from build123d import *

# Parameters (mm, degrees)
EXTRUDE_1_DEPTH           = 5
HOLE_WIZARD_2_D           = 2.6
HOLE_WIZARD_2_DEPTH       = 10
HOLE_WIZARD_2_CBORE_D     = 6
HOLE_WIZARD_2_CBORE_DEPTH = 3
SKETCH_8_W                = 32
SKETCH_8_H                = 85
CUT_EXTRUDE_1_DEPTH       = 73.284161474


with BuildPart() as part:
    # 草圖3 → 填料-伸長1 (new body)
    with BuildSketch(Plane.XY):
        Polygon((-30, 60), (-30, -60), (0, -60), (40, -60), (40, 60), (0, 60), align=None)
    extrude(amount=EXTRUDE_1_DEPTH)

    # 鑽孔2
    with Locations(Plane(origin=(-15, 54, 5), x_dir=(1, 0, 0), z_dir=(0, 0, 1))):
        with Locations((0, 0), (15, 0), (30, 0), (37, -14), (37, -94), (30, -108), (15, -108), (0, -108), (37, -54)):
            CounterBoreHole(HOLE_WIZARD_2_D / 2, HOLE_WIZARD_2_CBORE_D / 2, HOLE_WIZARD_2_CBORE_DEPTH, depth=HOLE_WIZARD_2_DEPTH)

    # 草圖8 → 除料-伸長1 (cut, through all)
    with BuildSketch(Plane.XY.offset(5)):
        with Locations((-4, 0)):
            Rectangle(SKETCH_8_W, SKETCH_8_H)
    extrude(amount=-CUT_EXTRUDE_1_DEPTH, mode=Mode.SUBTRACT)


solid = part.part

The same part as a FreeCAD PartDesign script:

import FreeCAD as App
import Part
import Sketcher

V = App.Vector
Q = App.Units.Quantity

doc = App.newDocument("Part")
body = doc.addObject("PartDesign::Body", "Body")

# Sketch on XY plane
sketch1 = doc.addObject("Sketcher::SketchObject", "Sketch")
body.addObject(sketch1)
sketch1.AttachmentSupport = (doc.XY_Plane, [""])
sketch1.MapMode = "FlatFace"
sketch1.addGeometry([
    Part.LineSegment(V(-30, 60, 0), V(-30, -60, 0)),
    Part.LineSegment(V(-30, -60, 0), V(40, -60, 0)),
    Part.LineSegment(V(40, -60, 0), V(40, 60, 0)),
    Part.LineSegment(V(40, 60, 0), V(-30, 60, 0)),
], False)
sketch1.addConstraint([
    Sketcher.Constraint("Coincident", 0, 2, 1, 1),
    Sketcher.Constraint("Coincident", 1, 2, 2, 1),
    Sketcher.Constraint("Coincident", 2, 2, 3, 1),
    Sketcher.Constraint("Coincident", 3, 2, 0, 1),
    Sketcher.Constraint("Vertical", 0),
    Sketcher.Constraint("Horizontal", 1),
    Sketcher.Constraint("Vertical", 2),
    Sketcher.Constraint("Horizontal", 3),
    Sketcher.Constraint("DistanceX", 1, 1, 1, 2, Q("70 mm")),
    Sketcher.Constraint("DistanceY", 0, 2, 0, 1, Q("120 mm")),
    Sketcher.Constraint("DistanceX", 0, 2, -1, 1, Q("30 mm")),
    Sketcher.Constraint("DistanceY", 0, 2, -1, 1, Q("60 mm")),
])
pad1 = doc.addObject("PartDesign::Pad", "Pad")
body.addObject(pad1)
pad1.Profile = sketch1
pad1.Length = 5

# Sketch on XY plane
sketch2 = doc.addObject("Sketcher::SketchObject", "Sketch001")
body.addObject(sketch2)
sketch2.AttachmentSupport = (doc.XY_Plane, [""])
sketch2.MapMode = "FlatFace"
sketch2.AttachmentOffset = App.Placement(V(0, 0, 5), App.Rotation())
sketch2.addGeometry([
    Part.Circle(V(-15, 54, 0), V(0, 0, 1), 1.3),  # 0
    Part.Circle(V(0, 54, 0), V(0, 0, 1), 1.3),  # 1
    Part.Circle(V(15, 54, 0), V(0, 0, 1), 1.3),  # 2
    Part.Circle(V(22, 40, 0), V(0, 0, 1), 1.3),  # 3
    Part.Circle(V(22, -40, 0), V(0, 0, 1), 1.3),  # 4
    Part.Circle(V(15, -54, 0), V(0, 0, 1), 1.3),  # 5
    Part.Circle(V(0, -54, 0), V(0, 0, 1), 1.3),  # 6
    Part.Circle(V(-15, -54, 0), V(0, 0, 1), 1.3),  # 7
    Part.Circle(V(22, 0, 0), V(0, 0, 1), 1.3),  # 8
], False)
sketch2.addConstraint([
    Sketcher.Constraint("Equal", 0, 1),
    Sketcher.Constraint("Equal", 1, 2),
    Sketcher.Constraint("Equal", 2, 3),
    Sketcher.Constraint("Equal", 3, 4),
    Sketcher.Constraint("Equal", 4, 5),
    Sketcher.Constraint("Equal", 5, 6),
    Sketcher.Constraint("Equal", 6, 7),
    Sketcher.Constraint("Equal", 7, 8),
    Sketcher.Constraint("Symmetric", 0, 3, 5, 3, -1, 1),
    Sketcher.Constraint("Symmetric", 1, 3, 6, 3, -1, 1),
    Sketcher.Constraint("Symmetric", 2, 3, 7, 3, -1, 1),
    Sketcher.Constraint("Symmetric", 0, 3, 2, 3, -2),
    Sketcher.Constraint("Symmetric", 3, 3, 4, 3, -1),
    Sketcher.Constraint("PointOnObject", 1, 3, -2),
    Sketcher.Constraint("PointOnObject", 8, 3, -1),
    Sketcher.Constraint("Horizontal", 0, 3, 1, 3),
    Sketcher.Constraint("Vertical", 4, 3, 8, 3),
    Sketcher.Constraint("Diameter", 0, Q("2.6 mm")),
    Sketcher.Constraint("DistanceX", 0, 3, -1, 1, Q("15 mm")),
    Sketcher.Constraint("DistanceY", -1, 1, 0, 3, Q("54 mm")),
    Sketcher.Constraint("DistanceX", -1, 1, 3, 3, Q("22 mm")),
    Sketcher.Constraint("DistanceY", -1, 1, 3, 3, Q("40 mm")),
])
doc.recompute()
hole = doc.addObject("PartDesign::Hole", "Hole")
body.addObject(hole)
hole.Profile = sketch2
hole.ThreadType = "None"
hole.Diameter = 2.6
hole.DepthType = "Dimension"
hole.Depth = 10
hole.DrillPoint = "Flat"
hole.HoleCutType = "Counterbore"
hole.HoleCutDiameter = 6
hole.HoleCutDepth = 3

# Sketch on XY plane
sketch3 = doc.addObject("Sketcher::SketchObject", "Sketch002")
body.addObject(sketch3)
sketch3.AttachmentSupport = (doc.XY_Plane, [""])
sketch3.MapMode = "FlatFace"
sketch3.AttachmentOffset = App.Placement(V(0, 0, 5), App.Rotation())
sketch3.addGeometry([
    Part.LineSegment(V(-20, 42.5, 0), V(-20, -42.5, 0)),
    Part.LineSegment(V(-20, -42.5, 0), V(12, -42.5, 0)),
    Part.LineSegment(V(12, -42.5, 0), V(12, 42.5, 0)),
    Part.LineSegment(V(12, 42.5, 0), V(-20, 42.5, 0)),
], False)
sketch3.addConstraint([
    Sketcher.Constraint("Coincident", 0, 2, 1, 1),
    Sketcher.Constraint("Coincident", 1, 2, 2, 1),
    Sketcher.Constraint("Coincident", 2, 2, 3, 1),
    Sketcher.Constraint("Coincident", 3, 2, 0, 1),
    Sketcher.Constraint("Vertical", 0),
    Sketcher.Constraint("Horizontal", 1),
    Sketcher.Constraint("Vertical", 2),
    Sketcher.Constraint("Horizontal", 3),
    Sketcher.Constraint("DistanceX", 1, 1, 1, 2, Q("32 mm")),
    Sketcher.Constraint("DistanceY", 0, 2, 0, 1, Q("85 mm")),
    Sketcher.Constraint("DistanceX", 0, 2, -1, 1, Q("20 mm")),
    Sketcher.Constraint("DistanceY", 0, 2, -1, 1, Q("42.5 mm")),
])
pocket1 = doc.addObject("PartDesign::Pocket", "Pocket")
body.addObject(pocket1)
pocket1.Profile = sketch3
pocket1.Type = "ThroughAll"

doc.recompute()
